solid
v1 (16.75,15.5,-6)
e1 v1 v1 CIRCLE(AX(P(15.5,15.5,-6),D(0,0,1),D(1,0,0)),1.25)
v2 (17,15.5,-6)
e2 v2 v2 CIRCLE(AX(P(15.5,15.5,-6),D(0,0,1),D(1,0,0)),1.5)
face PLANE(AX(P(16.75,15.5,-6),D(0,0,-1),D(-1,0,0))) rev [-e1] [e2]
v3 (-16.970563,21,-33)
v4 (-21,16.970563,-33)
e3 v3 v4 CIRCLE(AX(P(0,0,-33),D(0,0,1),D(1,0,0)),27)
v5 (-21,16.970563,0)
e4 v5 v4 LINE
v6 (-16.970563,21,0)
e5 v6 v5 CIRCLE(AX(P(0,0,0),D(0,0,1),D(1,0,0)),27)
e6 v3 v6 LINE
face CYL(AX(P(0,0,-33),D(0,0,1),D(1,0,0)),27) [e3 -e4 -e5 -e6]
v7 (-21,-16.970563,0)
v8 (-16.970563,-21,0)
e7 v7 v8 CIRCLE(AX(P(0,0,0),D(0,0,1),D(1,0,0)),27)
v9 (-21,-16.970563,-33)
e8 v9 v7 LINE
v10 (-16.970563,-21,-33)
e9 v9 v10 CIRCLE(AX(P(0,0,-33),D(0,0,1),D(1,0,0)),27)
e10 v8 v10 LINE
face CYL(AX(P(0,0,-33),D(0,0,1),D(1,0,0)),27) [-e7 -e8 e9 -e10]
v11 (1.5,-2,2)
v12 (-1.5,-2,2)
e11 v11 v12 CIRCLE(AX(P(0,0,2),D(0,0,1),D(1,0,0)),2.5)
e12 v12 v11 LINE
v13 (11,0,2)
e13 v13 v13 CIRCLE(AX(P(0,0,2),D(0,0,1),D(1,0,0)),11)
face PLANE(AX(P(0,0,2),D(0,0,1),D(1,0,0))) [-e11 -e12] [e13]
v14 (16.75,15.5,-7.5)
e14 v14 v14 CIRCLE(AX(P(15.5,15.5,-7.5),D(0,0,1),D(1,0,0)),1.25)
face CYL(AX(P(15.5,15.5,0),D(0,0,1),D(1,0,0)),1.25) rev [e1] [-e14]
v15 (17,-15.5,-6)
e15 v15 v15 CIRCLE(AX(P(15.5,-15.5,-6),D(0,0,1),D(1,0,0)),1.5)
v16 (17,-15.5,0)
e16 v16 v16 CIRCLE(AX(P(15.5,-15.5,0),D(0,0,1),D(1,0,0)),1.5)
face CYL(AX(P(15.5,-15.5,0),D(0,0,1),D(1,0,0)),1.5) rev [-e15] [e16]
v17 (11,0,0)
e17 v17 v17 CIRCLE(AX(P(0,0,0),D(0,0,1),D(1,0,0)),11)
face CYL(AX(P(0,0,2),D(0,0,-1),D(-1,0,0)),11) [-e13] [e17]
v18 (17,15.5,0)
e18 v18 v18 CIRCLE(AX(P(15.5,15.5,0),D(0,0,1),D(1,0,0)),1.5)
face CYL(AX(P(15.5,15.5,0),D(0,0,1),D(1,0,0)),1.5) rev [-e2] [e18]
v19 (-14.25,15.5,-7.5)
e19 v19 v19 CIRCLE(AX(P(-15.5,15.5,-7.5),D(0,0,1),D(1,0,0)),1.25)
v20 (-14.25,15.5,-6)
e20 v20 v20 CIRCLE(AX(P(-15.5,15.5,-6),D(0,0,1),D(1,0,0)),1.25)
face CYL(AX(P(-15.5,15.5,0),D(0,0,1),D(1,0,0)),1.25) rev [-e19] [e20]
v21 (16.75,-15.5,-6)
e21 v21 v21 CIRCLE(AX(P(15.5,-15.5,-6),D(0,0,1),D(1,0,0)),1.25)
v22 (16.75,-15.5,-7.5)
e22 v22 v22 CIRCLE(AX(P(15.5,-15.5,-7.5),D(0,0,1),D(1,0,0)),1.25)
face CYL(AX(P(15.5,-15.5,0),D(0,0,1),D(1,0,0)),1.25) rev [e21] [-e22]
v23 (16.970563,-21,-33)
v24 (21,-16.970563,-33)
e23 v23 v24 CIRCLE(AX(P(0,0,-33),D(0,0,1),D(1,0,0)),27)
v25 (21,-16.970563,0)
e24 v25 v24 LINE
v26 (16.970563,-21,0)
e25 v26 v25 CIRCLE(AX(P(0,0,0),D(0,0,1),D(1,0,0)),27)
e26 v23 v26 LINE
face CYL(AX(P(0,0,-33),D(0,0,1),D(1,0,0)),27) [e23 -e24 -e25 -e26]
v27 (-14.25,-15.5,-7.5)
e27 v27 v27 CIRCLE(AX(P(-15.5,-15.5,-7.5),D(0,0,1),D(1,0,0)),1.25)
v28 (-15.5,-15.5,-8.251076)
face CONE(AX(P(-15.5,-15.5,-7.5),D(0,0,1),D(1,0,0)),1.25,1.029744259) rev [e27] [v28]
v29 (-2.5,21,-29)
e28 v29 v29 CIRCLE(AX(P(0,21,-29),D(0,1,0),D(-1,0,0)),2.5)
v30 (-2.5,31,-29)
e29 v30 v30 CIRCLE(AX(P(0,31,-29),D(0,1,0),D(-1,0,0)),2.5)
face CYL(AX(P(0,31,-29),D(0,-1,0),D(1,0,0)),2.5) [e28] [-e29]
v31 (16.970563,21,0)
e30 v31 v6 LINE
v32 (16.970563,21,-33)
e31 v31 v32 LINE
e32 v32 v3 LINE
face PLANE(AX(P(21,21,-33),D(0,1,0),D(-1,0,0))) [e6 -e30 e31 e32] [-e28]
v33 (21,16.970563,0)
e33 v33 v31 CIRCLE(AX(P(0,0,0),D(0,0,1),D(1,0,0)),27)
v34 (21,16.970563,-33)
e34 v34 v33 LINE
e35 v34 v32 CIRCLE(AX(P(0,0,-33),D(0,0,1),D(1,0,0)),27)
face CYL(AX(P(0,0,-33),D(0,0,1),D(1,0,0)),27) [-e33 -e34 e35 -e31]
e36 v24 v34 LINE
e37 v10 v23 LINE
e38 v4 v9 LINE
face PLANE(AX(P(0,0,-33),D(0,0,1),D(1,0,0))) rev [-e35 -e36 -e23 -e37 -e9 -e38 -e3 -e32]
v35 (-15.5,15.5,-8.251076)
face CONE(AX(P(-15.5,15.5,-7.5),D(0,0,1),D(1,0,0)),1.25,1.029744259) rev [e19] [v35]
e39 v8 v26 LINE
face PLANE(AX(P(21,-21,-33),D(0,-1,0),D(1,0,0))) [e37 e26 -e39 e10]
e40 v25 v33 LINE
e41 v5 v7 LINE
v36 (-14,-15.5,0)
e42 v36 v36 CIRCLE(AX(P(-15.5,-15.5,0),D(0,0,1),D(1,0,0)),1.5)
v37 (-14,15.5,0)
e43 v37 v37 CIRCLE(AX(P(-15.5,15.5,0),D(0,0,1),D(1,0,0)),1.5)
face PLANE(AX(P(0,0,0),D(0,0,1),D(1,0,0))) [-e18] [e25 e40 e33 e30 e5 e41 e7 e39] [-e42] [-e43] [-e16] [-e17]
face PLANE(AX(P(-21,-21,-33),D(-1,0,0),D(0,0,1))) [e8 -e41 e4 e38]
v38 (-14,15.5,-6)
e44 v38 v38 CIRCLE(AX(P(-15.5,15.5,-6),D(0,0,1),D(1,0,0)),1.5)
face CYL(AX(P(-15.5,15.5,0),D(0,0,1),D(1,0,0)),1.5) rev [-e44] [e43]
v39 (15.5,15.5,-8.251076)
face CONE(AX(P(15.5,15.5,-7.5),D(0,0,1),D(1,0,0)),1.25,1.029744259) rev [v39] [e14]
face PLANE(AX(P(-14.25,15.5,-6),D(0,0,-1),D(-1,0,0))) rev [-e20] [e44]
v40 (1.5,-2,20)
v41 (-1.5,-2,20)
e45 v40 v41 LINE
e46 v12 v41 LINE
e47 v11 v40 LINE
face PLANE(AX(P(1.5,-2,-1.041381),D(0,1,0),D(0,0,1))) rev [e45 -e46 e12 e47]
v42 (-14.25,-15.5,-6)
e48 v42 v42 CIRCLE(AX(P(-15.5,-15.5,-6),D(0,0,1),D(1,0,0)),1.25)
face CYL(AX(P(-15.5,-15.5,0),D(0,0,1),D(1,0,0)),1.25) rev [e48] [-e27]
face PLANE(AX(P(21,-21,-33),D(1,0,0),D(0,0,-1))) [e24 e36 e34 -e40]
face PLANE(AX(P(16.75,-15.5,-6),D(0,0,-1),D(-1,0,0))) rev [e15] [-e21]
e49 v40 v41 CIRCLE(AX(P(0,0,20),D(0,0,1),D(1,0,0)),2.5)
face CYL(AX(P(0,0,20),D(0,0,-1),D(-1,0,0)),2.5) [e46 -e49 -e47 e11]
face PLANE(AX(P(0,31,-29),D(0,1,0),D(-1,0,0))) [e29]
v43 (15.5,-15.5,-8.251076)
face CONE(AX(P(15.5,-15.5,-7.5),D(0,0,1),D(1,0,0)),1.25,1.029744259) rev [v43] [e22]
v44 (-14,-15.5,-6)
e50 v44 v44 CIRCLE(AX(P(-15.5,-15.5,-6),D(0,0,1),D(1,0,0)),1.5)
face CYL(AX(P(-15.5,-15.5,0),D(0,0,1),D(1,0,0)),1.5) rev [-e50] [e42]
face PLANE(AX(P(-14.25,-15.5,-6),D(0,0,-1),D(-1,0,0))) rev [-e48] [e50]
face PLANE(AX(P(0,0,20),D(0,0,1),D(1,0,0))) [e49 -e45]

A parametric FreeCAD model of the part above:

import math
import FreeCAD as App
import Part
import Sketcher

doc = App.newDocument("Part")
body = doc.addObject("PartDesign::Body", "Body")

# Sketch on XY plane
sketch1 = body.newObject("Sketcher::SketchObject", "Sketch")
sketch1.AttachmentSupport = (doc.getObject("XY_Plane"), [""])
sketch1.MapMode = "FlatFace"
sketch1.addGeometry(Part.LineSegment(App.Vector(-21, 21, 0), App.Vector(-21, -21, 0)), False)
sketch1.addGeometry(Part.LineSegment(App.Vector(-21, -21, 0), App.Vector(21, -21, 0)), False)
sketch1.addGeometry(Part.LineSegment(App.Vector(21, -21, 0), App.Vector(21, 21, 0)), False)
sketch1.addGeometry(Part.LineSegment(App.Vector(21, 21, 0), App.Vector(-21, 21, 0)), False)
sketch1.addConstraint(Sketcher.Constraint("Coincident", 0, 2, 1, 1))
sketch1.addConstraint(Sketcher.Constraint("Coincident", 1, 2, 2, 1))
sketch1.addConstraint(Sketcher.Constraint("Coincident", 2, 2, 3, 1))
sketch1.addConstraint(Sketcher.Constraint("Coincident", 3, 2, 0, 1))
sketch1.addConstraint(Sketcher.Constraint("Vertical", 0))
sketch1.addConstraint(Sketcher.Constraint("Horizontal", 1))
sketch1.addConstraint(Sketcher.Constraint("Vertical", 2))
sketch1.addConstraint(Sketcher.Constraint("Horizontal", 3))
sketch1.addConstraint(Sketcher.Constraint("Symmetric", 0, 2, 2, 2, -1, 1))
sketch1.addConstraint(Sketcher.Constraint("Equal", 3, 0))
sketch1.addConstraint(Sketcher.Constraint("DistanceX", 1, 1, 1, 2, 42.0))
pad1 = body.newObject("PartDesign::Pad", "Pad")
pad1.Profile = sketch1
pad1.Length = 33
pad1.Reversed = True

# Sketch on XY plane
sketch2 = body.newObject("Sketcher::SketchObject", "Sketch001")
sketch2.AttachmentSupport = (doc.getObject("XY_Plane"), [""])
sketch2.MapMode = "FlatFace"
sketch2.addGeometry(Part.Circle(App.Vector(0, 0, 0), App.Vector(0, 0, 1), 11), False)
sketch2.addConstraint(Sketcher.Constraint("Coincident", 0, 3, -1, 1))
sketch2.addConstraint(Sketcher.Constraint("Diameter", 0, 22.0))
pad2 = body.newObject("PartDesign::Pad", "Pad001")
pad2.Profile = sketch2
pad2.Length = 2

# Sketch on XY plane
sketch3 = body.newObject("Sketcher::SketchObject", "Sketch002")
sketch3.AttachmentSupport = (doc.getObject("XY_Plane"), [""])
sketch3.MapMode = "FlatFace"
sketch3.AttachmentOffset = App.Placement(App.Vector(0, 0, 2), App.Rotation())
sketch3.addGeometry(Part.Circle(App.Vector(0, 0, 0), App.Vector(0, 0, 1), 2.5), False)
sketch3.addConstraint(Sketcher.Constraint("Coincident", 0, 3, -1, 1))
sketch3.addConstraint(Sketcher.Constraint("Diameter", 0, 5.0))
pad3 = body.newObject("PartDesign::Pad", "Pad002")
pad3.Profile = sketch3
pad3.Length = 18

# Sketch on XY plane
sketch4 = body.newObject("Sketcher::SketchObject", "Sketch003")
sketch4.AttachmentSupport = (doc.getObject("XY_Plane"), [""])
sketch4.MapMode = "FlatFace"
sketch4.AttachmentOffset = App.Placement(App.Vector(0, 0, 20), App.Rotation())
sketch4.addGeometry(Part.LineSegment(App.Vector(1.5, -2, 0), App.Vector(-1.5, -2, 0)), False)
sketch4.addGeometry(Part.ArcOfCircle(Part.Circle(App.Vector(0, 0, 0), App.Vector(0, 0, 1), 2.5), math.radians(-127), math.radians(-53)), False)
sketch4.addConstraint(Sketcher.Constraint("Coincident", 0, 1, 1, 2))
sketch4.addConstraint(Sketcher.Constraint("Coincident", 1, 1, 0, 2))
sketch4.addConstraint(Sketcher.Constraint("Horizontal", 0))
sketch4.addConstraint(Sketcher.Constraint("Coincident", 1, 3, -1, 1))
sketch4.addConstraint(Sketcher.Constraint("Radius", 1, 2.5))
sketch4.addConstraint(Sketcher.Constraint("DistanceX", 0, 2, 0, 1, 3.0))
pocket1 = body.newObject("PartDesign::Pocket", "Pocket")
pocket1.Profile = sketch4
pocket1.Length = 18

# Sketch on XY plane
sketch5 = body.newObject("Sketcher::SketchObject", "Sketch004")
sketch5.AttachmentSupport = (doc.getObject("XY_Plane"), [""])
sketch5.MapMode = "FlatFace"
sketch5.addGeometry(Part.Circle(App.Vector(-15.5, 15.5, 0), App.Vector(0, 0, 1), 1.2), False)
sketch5.addGeometry(Part.Circle(App.Vector(15.5, 15.5, 0), App.Vector(0, 0, 1), 1.2), False)
sketch5.addGeometry(Part.Circle(App.Vector(15.5, -15.5, 0), App.Vector(0, 0, 1), 1.2), False)
sketch5.addGeometry(Part.Circle(App.Vector(-15.5, -15.5, 0), App.Vector(0, 0, 1), 1.2), False)
sketch5.addConstraint(Sketcher.Constraint("Equal", 0, 1))
sketch5.addConstraint(Sketcher.Constraint("Equal", 1, 2))
sketch5.addConstraint(Sketcher.Constraint("Equal", 2, 3))
sketch5.addConstraint(Sketcher.Constraint("Symmetric", 0, 3, 2, 3, -1, 1))
sketch5.addConstraint(Sketcher.Constraint("Symmetric", 1, 3, 3, 3, -1, 1))
sketch5.addConstraint(Sketcher.Constraint("Symmetric", 0, 3, 1, 3, -2))
sketch5.addConstraint(Sketcher.Constraint("Diameter", 0, 2.5))
sketch5.addConstraint(Sketcher.Constraint("DistanceX", 0, 3, 1, 3, 31.0))
sketch5.addConstraint(Sketcher.Constraint("DistanceY", 2, 3, 1, 3, 31.0))
doc.recompute()
hole = body.newObject("PartDesign::Hole", "Hole")
hole.Profile = sketch5
hole.ThreadType = "None"
hole.Diameter = 2.5
hole.DepthType = "Dimension"
hole.Depth = 7.5
hole.DrillPoint = "Angled"
hole.DrillPointAngle = 118
hole.HoleCutType = "Counterbore"
hole.HoleCutDiameter = 3
hole.HoleCutDepth = 6

# Sketch on XY plane
sketch6 = body.newObject("Sketcher::SketchObject", "Sketch005")
sketch6.AttachmentSupport = (doc.getObject("XY_Plane"), [""])
sketch6.MapMode = "FlatFace"
sketch6.addGeometry(Part.LineSegment(App.Vector(-30, 30, 0), App.Vector(-30, -30, 0)), False)
sketch6.addGeometry(Part.LineSegment(App.Vector(-30, -30, 0), App.Vector(30, -30, 0)), False)
sketch6.addGeometry(Part.LineSegment(App.Vector(30, -30, 0), App.Vector(30, 30, 0)), False)
sketch6.addGeometry(Part.LineSegment(App.Vector(30, 30, 0), App.Vector(-30, 30, 0)), False)
sketch6.addGeometry(Part.Circle(App.Vector(0, 0, 0), App.Vector(0, 0, 1), 27), False)
sketch6.addConstraint(Sketcher.Constraint("Coincident", 0, 2, 1, 1))
sketch6.addConstraint(Sketcher.Constraint("Coincident", 1, 2, 2, 1))
sketch6.addConstraint(Sketcher.Constraint("Coincident", 2, 2, 3, 1))
sketch6.addConstraint(Sketcher.Constraint("Coincident", 3, 2, 0, 1))
sketch6.addConstraint(Sketcher.Constraint("Vertical", 0))
sketch6.addConstraint(Sketcher.Constraint("Horizontal", 1))
sketch6.addConstraint(Sketcher.Constraint("Vertical", 2))
sketch6.addConstraint(Sketcher.Constraint("Horizontal", 3))
sketch6.addConstraint(Sketcher.Constraint("Coincident", 4, 3, -1, 1))
sketch6.addConstraint(Sketcher.Constraint("Symmetric", 0, 2, 2, 2, -1, 1))
sketch6.addConstraint(Sketcher.Constraint("Equal", 3, 0))
sketch6.addConstraint(Sketcher.Constraint("Diameter", 4, 54.0))
sketch6.addConstraint(Sketcher.Constraint("DistanceX", 1, 1, 1, 2, 59.922))
pocket2 = body.newObject("PartDesign::Pocket", "Pocket001")
pocket2.Profile = sketch6
pocket2.Type = "ThroughAll"

# Sketch on XZ plane
sketch7 = body.newObject("Sketcher::SketchObject", "Sketch006")
sketch7.AttachmentSupport = (doc.getObject("XZ_Plane"), [""])
sketch7.MapMode = "FlatFace"
sketch7.AttachmentOffset = App.Placement(App.Vector(0, 0, -21), App.Rotation())
sketch7.addGeometry(Part.Circle(App.Vector(0, -29, 0), App.Vector(0, 0, 1), 2.5), False)
sketch7.addConstraint(Sketcher.Constraint("PointOnObject", 0, 3, -2))
sketch7.addConstraint(Sketcher.Constraint("Diameter", 0, 5.0))
sketch7.addConstraint(Sketcher.Constraint("DistanceY", 0, 3, -1, 1, 29.0))
pad4 = body.newObject("PartDesign::Pad", "Pad003")
pad4.Profile = sketch7
pad4.Length = 10
pad4.Reversed = True

doc.recompute()
